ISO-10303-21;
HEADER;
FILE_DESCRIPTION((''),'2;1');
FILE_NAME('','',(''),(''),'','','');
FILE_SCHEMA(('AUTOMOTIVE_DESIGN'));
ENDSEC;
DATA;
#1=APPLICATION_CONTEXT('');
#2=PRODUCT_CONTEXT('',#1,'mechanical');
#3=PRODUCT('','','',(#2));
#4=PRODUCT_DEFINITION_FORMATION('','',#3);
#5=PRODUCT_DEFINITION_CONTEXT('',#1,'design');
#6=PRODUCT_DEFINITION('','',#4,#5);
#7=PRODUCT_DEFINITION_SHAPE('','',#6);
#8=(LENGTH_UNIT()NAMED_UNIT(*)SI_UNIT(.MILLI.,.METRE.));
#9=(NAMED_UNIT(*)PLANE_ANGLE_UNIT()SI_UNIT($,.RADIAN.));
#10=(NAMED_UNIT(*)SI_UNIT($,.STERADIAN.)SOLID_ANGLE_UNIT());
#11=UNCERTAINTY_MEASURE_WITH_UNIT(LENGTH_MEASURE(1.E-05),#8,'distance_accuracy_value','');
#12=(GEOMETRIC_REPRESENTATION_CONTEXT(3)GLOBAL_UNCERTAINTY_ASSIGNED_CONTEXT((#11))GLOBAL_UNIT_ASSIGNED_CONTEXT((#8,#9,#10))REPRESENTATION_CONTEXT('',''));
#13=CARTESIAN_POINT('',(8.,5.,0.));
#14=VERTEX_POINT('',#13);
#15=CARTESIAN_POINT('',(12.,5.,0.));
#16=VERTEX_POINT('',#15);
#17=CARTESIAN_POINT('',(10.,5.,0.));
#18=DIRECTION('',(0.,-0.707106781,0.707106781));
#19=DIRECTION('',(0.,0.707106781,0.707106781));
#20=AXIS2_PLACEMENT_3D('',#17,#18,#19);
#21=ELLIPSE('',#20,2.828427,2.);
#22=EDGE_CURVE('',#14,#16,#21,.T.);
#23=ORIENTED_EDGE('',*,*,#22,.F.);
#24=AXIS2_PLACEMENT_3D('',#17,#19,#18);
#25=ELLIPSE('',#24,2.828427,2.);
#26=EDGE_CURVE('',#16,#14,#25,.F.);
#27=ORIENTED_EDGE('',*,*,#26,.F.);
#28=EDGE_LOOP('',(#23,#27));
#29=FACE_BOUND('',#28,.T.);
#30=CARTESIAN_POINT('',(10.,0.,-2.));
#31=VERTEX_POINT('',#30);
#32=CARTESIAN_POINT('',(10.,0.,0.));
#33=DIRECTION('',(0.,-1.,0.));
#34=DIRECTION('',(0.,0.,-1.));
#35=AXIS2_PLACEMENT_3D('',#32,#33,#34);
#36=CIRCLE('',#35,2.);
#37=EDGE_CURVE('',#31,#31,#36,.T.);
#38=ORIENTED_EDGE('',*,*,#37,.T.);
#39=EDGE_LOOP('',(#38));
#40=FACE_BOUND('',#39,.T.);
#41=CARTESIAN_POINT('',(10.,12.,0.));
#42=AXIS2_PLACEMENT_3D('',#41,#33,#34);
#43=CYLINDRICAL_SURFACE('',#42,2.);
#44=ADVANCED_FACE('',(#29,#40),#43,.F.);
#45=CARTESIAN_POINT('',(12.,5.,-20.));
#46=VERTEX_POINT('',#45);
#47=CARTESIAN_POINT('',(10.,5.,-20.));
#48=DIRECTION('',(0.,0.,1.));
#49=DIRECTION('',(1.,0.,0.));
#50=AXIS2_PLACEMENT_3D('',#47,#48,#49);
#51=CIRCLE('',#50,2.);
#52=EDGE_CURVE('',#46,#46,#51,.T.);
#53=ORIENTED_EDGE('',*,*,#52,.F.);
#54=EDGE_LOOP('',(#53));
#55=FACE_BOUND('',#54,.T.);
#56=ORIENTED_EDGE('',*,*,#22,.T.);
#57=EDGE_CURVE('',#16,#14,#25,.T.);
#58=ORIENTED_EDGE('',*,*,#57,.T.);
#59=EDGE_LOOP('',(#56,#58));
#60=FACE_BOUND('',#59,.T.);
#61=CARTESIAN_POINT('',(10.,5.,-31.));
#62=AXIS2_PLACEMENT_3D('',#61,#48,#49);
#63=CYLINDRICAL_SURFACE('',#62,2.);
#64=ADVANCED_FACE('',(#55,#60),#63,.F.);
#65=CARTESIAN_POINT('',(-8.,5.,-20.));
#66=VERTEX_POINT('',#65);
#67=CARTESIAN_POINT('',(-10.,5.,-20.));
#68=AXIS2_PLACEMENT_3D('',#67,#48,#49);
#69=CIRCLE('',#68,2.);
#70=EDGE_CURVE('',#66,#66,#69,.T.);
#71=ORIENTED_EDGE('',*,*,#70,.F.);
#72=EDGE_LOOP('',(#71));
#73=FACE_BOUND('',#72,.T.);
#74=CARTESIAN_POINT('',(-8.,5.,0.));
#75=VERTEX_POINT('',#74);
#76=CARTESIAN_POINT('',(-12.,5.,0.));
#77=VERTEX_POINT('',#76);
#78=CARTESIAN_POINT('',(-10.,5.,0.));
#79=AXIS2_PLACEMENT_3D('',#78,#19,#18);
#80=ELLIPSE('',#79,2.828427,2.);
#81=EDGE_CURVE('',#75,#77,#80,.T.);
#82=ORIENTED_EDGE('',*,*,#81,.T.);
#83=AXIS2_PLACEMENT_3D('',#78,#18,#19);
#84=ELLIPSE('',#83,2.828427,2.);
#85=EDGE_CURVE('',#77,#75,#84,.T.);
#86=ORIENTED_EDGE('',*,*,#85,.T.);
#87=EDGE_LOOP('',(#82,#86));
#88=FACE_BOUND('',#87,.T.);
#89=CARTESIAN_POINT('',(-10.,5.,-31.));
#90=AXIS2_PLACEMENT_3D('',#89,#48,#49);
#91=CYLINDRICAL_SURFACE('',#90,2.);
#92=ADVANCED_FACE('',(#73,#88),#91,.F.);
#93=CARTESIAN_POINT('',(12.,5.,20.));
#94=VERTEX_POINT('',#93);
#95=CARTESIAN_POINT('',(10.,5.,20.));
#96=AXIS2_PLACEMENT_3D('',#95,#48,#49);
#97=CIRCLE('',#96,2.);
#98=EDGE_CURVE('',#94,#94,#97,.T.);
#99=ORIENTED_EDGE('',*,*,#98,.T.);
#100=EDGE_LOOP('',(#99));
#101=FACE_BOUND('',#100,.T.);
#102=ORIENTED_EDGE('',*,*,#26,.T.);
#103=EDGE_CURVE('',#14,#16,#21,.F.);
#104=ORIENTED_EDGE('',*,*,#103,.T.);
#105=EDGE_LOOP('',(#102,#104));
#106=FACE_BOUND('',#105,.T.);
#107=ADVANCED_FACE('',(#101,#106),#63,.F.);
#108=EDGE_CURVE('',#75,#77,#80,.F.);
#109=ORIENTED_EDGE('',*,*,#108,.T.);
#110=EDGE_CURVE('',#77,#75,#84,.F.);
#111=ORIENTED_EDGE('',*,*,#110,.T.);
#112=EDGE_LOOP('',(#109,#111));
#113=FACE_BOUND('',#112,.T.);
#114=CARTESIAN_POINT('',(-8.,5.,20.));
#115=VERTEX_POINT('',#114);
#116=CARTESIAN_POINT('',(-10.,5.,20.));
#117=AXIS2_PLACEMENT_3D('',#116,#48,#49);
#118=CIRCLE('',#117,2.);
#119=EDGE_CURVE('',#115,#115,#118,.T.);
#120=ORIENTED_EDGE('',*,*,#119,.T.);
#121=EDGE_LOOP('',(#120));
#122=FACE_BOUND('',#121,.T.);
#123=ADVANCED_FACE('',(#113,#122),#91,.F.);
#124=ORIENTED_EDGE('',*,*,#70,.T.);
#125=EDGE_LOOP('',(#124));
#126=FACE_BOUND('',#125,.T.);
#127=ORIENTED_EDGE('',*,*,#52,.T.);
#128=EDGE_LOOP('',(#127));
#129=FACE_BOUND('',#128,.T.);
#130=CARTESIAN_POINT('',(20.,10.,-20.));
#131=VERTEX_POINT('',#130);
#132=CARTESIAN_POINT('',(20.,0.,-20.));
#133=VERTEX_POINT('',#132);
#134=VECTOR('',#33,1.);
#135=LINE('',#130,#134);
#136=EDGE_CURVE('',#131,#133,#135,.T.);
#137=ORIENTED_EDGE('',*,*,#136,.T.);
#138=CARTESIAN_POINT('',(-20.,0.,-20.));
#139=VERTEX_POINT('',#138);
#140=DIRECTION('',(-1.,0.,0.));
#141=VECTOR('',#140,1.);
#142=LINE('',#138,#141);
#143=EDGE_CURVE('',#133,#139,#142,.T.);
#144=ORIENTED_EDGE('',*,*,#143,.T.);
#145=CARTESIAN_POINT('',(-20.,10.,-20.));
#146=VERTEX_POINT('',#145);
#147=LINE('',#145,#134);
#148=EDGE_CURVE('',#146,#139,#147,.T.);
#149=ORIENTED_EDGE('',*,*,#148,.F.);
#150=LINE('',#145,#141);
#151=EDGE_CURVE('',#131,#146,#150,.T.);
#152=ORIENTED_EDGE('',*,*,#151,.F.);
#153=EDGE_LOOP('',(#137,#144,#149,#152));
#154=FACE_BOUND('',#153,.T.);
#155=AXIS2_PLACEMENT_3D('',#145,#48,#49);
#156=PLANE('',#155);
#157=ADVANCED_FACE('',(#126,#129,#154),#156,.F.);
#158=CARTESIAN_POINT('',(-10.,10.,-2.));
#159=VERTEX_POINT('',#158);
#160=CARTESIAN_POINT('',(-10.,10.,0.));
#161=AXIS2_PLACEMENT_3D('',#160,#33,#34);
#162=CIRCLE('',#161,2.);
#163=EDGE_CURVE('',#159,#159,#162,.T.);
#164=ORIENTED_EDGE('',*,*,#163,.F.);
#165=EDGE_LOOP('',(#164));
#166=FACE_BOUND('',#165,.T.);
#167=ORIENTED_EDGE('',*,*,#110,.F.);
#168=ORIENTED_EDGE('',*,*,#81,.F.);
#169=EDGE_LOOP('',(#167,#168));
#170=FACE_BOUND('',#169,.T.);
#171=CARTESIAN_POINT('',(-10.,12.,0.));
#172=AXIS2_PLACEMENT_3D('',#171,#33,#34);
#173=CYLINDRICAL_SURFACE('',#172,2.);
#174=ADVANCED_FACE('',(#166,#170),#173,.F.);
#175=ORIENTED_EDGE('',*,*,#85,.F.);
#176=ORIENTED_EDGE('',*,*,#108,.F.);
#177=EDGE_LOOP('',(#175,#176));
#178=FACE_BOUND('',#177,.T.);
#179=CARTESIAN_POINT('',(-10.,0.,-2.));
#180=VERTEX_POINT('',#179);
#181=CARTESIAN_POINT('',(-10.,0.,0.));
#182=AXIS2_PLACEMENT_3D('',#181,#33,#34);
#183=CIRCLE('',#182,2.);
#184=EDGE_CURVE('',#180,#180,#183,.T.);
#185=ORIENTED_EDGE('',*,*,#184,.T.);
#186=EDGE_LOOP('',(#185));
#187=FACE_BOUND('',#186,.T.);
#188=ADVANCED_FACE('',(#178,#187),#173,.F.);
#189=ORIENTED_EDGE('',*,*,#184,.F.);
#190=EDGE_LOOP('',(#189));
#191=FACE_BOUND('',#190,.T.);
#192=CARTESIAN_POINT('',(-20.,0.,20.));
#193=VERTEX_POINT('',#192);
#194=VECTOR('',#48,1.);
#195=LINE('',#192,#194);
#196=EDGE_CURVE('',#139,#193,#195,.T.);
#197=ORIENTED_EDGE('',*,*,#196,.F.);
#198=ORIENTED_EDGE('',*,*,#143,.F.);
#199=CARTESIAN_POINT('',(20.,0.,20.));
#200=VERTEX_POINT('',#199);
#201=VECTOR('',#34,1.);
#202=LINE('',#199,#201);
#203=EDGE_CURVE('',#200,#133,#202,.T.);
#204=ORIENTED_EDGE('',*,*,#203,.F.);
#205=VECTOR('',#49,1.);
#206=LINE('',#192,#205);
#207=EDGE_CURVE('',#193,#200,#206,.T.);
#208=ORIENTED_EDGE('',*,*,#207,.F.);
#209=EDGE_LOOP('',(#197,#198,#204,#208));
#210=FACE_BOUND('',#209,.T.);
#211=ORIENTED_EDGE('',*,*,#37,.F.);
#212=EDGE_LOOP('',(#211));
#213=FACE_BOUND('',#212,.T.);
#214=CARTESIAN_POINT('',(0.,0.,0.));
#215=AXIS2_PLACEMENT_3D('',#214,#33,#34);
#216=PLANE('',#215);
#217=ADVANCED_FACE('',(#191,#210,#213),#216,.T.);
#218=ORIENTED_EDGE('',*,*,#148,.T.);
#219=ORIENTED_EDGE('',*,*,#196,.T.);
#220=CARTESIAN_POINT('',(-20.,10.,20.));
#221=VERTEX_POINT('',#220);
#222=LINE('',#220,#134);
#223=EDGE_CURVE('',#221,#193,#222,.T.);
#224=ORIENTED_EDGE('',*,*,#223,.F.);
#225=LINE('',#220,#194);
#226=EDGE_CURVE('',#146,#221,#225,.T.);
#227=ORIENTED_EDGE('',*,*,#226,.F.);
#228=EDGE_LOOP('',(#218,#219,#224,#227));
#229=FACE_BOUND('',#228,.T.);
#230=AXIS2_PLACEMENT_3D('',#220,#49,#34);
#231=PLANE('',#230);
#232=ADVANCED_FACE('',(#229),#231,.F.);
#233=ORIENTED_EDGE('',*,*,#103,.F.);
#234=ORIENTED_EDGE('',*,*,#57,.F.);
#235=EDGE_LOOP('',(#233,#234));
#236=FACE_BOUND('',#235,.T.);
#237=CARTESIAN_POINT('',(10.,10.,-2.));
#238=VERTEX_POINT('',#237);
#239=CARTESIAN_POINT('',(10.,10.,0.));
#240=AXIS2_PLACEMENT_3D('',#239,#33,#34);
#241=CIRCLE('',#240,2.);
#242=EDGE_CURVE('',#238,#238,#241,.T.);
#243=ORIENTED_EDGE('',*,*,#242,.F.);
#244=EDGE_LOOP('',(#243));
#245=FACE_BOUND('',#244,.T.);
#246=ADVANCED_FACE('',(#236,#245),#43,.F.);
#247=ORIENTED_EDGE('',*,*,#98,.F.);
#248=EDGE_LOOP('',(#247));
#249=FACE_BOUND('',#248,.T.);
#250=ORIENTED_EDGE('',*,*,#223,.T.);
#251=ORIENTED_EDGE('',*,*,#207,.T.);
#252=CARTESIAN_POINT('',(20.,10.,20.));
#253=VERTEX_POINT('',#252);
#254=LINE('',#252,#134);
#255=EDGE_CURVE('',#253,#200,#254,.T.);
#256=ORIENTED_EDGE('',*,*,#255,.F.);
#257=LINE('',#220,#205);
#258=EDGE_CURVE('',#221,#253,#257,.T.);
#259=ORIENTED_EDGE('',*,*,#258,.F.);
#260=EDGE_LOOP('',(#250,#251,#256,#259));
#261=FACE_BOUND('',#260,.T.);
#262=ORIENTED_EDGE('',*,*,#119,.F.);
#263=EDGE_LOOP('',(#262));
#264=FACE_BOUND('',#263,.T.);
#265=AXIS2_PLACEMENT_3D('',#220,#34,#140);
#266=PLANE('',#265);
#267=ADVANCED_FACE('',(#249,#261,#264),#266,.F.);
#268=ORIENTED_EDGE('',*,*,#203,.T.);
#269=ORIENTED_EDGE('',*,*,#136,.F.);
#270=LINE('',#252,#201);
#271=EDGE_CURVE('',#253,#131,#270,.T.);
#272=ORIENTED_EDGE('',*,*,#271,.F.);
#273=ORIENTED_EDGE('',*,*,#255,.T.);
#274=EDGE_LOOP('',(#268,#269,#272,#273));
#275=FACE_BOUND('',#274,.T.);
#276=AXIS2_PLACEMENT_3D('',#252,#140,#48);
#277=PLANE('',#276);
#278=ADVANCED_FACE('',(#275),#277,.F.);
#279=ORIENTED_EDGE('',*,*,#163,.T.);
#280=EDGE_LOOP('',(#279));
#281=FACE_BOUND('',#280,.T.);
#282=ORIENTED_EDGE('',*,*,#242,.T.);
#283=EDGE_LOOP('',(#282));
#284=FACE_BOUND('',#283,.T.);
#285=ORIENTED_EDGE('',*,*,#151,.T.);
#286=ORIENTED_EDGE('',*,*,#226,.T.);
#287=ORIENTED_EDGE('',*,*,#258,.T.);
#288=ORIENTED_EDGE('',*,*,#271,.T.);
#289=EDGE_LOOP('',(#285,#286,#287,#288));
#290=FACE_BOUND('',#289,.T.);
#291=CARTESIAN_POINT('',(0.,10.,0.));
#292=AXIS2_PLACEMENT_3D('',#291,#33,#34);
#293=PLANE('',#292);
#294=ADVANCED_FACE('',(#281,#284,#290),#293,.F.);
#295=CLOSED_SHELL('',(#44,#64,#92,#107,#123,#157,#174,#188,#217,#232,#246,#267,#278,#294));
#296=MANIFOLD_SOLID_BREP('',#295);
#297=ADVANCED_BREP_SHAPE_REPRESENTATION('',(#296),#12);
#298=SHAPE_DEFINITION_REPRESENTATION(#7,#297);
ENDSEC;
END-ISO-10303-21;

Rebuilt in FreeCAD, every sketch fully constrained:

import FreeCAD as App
import Part
import Sketcher

V = App.Vector

doc = App.newDocument("Part")
body = doc.addObject("PartDesign::Body", "Body")

sketch1 = doc.addObject("Sketcher::SketchObject", "Sketch")
body.addObject(sketch1)
sketch1.AttachmentSupport = (doc.XZ_Plane, [""])
sketch1.MapMode = "FlatFace"
sketch1.addGeometry(Part.LineSegment(V(-20, -20, 0), V(-20, 20, 0)), False)
sketch1.addGeometry(Part.LineSegment(V(-20, 20, 0), V(20, 20, 0)), False)
sketch1.addGeometry(Part.LineSegment(V(20, 20, 0), V(20, -20, 0)), False)
sketch1.addGeometry(Part.LineSegment(V(20, -20, 0), V(-20, -20, 0)), False)
sketch1.addConstraint(Sketcher.Constraint("Coincident", 0, 2, 1, 1))
sketch1.addConstraint(Sketcher.Constraint("Coincident", 1, 2, 2, 1))
sketch1.addConstraint(Sketcher.Constraint("Coincident", 2, 2, 3, 1))
sketch1.addConstraint(Sketcher.Constraint("Coincident", 3, 2, 0, 1))
sketch1.addConstraint(Sketcher.Constraint("Vertical", 0))
sketch1.addConstraint(Sketcher.Constraint("Horizontal", 1))
sketch1.addConstraint(Sketcher.Constraint("Vertical", 2))
sketch1.addConstraint(Sketcher.Constraint("Horizontal", 3))
sketch1.addConstraint(Sketcher.Constraint("Symmetric", 0, 2, 2, 2, -1, 1))
sketch1.addConstraint(Sketcher.Constraint("Equal", 3, 0))
sketch1.addConstraint(Sketcher.Constraint("DistanceX", 1, 1, 1, 2, 40.0))
pad1 = doc.addObject("PartDesign::Pad", "Pad")
body.addObject(pad1)
pad1.Profile = sketch1
pad1.Length = 10
pad1.Reversed = True

sketch2 = doc.addObject("Sketcher::SketchObject", "Sketch001")
body.addObject(sketch2)
sketch2.AttachmentSupport = (doc.XY_Plane, [""])
sketch2.MapMode = "FlatFace"
sketch2.AttachmentOffset = App.Placement(V(0, 0, 20), App.Rotation())
sketch2.addGeometry(Part.Circle(V(10, 5, 0), V(0, 0, 1), 2), False)
sketch2.addGeometry(Part.Circle(V(-10, 5, 0), V(0, 0, 1), 2), False)
sketch2.addConstraint(Sketcher.Constraint("Equal", 0, 1))
sketch2.addConstraint(Sketcher.Constraint("Symmetric", 0, 3, 1, 3, -2))
sketch2.addConstraint(Sketcher.Constraint("Diameter", 0, 4.0))
sketch2.addConstraint(Sketcher.Constraint("DistanceX", -1, 1, 0, 3, 10.0))
sketch2.addConstraint(Sketcher.Constraint("DistanceY", -1, 1, 0, 3, 5.0))
pocket1 = doc.addObject("PartDesign::Pocket", "Pocket")
body.addObject(pocket1)
pocket1.Profile = sketch2
pocket1.Length = 51

sketch3 = doc.addObject("Sketcher::SketchObject", "Sketch002")
body.addObject(sketch3)
sketch3.AttachmentSupport = (doc.XZ_Plane, [""])
sketch3.MapMode = "FlatFace"
sketch3.addGeometry(Part.Circle(V(10, 0, 0), V(0, 0, 1), 2), False)
sketch3.addGeometry(Part.Circle(V(-10, 0, 0), V(0, 0, 1), 2), False)
sketch3.addConstraint(Sketcher.Constraint("Equal", 0, 1))
sketch3.addConstraint(Sketcher.Constraint("Symmetric", 0, 3, 1, 3, -1, 1))
sketch3.addConstraint(Sketcher.Constraint("PointOnObject", 0, 3, -1))
sketch3.addConstraint(Sketcher.Constraint("Diameter", 0, 4.0))
sketch3.addConstraint(Sketcher.Constraint("DistanceX", -1, 1, 0, 3, 10.0))
pocket2 = doc.addObject("PartDesign::Pocket", "Pocket001")
body.addObject(pocket2)
pocket2.Profile = sketch3
pocket2.Length = 12

doc.recompute()
